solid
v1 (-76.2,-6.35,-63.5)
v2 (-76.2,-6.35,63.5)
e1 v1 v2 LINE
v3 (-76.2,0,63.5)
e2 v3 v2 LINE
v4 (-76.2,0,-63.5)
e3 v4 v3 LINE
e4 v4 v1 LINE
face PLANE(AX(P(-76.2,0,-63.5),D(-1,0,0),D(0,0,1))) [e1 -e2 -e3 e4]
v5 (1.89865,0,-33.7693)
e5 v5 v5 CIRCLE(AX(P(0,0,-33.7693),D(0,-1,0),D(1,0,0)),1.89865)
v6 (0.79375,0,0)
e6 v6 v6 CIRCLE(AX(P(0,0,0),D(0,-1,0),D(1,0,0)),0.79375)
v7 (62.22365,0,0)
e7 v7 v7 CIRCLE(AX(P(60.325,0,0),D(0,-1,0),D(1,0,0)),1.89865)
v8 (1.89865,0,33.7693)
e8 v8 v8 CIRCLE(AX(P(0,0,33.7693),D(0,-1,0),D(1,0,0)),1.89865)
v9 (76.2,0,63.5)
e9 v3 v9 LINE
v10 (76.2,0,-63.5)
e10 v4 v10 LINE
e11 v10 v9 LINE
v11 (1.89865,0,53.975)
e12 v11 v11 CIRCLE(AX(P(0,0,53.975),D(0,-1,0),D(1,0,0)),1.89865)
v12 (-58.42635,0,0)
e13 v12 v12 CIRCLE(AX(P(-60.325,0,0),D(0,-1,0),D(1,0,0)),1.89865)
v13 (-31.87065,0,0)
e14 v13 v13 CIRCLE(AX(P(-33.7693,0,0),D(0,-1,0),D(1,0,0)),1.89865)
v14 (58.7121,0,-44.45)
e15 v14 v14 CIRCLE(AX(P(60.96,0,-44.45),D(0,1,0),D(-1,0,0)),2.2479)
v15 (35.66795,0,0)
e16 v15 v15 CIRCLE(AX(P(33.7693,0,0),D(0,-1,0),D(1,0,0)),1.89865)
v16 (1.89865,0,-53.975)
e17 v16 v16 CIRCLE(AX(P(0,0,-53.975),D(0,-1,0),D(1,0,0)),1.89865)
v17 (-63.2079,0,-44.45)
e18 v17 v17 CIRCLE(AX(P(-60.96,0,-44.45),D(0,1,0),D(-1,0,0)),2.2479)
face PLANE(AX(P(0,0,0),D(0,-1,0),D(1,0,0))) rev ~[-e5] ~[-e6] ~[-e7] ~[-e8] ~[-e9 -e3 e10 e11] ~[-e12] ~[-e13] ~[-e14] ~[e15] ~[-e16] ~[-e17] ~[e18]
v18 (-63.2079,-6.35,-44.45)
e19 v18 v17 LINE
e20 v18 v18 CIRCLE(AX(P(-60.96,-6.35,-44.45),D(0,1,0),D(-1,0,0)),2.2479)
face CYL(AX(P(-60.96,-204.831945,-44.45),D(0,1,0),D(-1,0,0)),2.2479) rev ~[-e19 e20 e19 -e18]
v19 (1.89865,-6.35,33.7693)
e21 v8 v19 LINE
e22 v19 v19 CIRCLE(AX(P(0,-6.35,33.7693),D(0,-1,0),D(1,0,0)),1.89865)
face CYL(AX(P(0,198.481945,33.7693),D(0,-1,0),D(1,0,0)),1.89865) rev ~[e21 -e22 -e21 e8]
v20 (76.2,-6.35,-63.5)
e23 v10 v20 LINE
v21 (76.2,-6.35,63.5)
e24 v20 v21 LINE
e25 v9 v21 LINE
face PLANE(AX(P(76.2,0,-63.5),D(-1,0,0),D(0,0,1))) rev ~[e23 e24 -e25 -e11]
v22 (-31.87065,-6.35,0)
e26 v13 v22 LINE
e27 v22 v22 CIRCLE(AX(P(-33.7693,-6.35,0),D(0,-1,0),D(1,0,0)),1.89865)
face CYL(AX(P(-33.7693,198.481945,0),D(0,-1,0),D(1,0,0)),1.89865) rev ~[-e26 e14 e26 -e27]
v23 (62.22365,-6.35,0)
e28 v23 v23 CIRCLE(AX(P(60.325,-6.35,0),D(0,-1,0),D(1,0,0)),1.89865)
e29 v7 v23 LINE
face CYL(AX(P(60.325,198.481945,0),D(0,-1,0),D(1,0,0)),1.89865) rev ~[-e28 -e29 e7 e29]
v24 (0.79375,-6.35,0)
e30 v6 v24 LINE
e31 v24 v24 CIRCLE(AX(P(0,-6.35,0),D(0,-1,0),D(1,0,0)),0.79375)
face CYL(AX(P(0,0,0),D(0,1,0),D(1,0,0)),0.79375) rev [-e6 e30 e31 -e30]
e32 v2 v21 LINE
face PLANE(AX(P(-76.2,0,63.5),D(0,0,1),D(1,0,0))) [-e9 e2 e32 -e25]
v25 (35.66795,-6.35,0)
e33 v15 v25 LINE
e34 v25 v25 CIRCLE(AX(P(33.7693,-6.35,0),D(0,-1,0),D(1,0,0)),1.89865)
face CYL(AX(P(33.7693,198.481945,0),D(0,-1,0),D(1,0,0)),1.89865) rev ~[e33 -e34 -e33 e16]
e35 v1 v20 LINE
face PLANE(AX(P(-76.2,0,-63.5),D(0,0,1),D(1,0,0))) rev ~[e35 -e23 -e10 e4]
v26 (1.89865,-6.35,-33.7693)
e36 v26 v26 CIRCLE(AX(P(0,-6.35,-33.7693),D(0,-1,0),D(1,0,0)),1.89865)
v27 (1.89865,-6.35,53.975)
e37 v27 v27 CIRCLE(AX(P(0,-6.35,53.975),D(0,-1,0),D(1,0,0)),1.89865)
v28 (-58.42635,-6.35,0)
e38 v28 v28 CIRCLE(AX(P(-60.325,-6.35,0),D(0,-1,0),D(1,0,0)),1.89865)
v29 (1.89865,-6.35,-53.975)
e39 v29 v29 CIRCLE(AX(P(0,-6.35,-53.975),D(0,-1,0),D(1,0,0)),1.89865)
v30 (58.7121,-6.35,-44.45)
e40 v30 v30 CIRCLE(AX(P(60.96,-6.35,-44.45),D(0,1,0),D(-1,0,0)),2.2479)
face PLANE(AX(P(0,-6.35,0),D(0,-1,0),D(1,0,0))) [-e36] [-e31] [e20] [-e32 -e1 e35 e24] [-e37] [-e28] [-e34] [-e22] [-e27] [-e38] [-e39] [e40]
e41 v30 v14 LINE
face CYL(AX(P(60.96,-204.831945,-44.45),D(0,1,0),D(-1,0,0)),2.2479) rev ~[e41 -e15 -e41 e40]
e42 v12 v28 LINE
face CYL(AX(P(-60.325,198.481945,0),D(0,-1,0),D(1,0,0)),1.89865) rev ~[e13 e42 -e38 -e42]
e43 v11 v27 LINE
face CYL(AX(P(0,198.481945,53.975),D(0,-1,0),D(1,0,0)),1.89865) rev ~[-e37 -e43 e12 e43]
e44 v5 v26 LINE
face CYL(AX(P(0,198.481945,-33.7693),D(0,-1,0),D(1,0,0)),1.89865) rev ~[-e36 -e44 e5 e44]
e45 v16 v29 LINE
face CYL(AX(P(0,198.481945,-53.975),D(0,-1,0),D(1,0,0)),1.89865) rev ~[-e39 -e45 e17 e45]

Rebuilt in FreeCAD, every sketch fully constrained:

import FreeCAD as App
import Part
import Sketcher
Q = App.Units.Quantity

doc = App.newDocument("Part")
params = doc.addObject("Spreadsheet::Sheet", "Params")
for row, (alias, value) in enumerate([
    ("sketch1_width", "6 in"),
    ("sketch1_height", "5 in"),
    ("sketch1_diameter", "0.0625 in"),
    ("pad1_length", "0.25 in"),
    ("hole_diameter", "0.1495 in"),
    ("hole2_diameter", "0.1495 in"),
    ("sketch4_diameter", "0.177 in"),
    ("hole3_diameter", "0.177 in"),
], start=1):
    params.set(f"A{row}", alias)
    params.set(f"B{row}", "=" + value)
    params.setAlias(f"B{row}", alias)

body = doc.addObject("PartDesign::Body", "Body")

# Sketch on XZ plane
sketch1 = body.newObject("Sketcher::SketchObject", "Sketch")
sketch1.AttachmentSupport = (doc.getObject("XZ_Plane"), [""])
sketch1.MapMode = "FlatFace"
sketch1.addGeometry([
    Part.LineSegment(App.Vector(-76.2, 63.5, 0), App.Vector(-76.2, -63.5, 0)),  # 0
    Part.LineSegment(App.Vector(-76.2, -63.5, 0), App.Vector(76.2, -63.5, 0)),  # 1
    Part.LineSegment(App.Vector(76.2, -63.5, 0), App.Vector(76.2, 63.5, 0)),  # 2
    Part.LineSegment(App.Vector(76.2, 63.5, 0), App.Vector(-76.2, 63.5, 0)),  # 3
    Part.Circle(App.Vector(0, 0, 0), App.Vector(0, 0, 1), 0.8),  # 4
], False)
sketch1.addConstraint([
    Sketcher.Constraint("Coincident", 0, 2, 1, 1),
    Sketcher.Constraint("Coincident", 1, 2, 2, 1),
    Sketcher.Constraint("Coincident", 2, 2, 3, 1),
    Sketcher.Constraint("Coincident", 3, 2, 0, 1),
    Sketcher.Constraint("Vertical", 0),
    Sketcher.Constraint("Horizontal", 1),
    Sketcher.Constraint("Vertical", 2),
    Sketcher.Constraint("Horizontal", 3),
    Sketcher.Constraint("Coincident", 4, 3, -1, 1),
    Sketcher.Constraint("Symmetric", 0, 2, 2, 2, -1, 1),
    Sketcher.Constraint("DistanceX", 1, 1, 1, 2, Q("6 in")),
    Sketcher.Constraint("DistanceY", 0, 2, 0, 1, Q("5 in")),
    Sketcher.Constraint("Diameter", 4, Q("0.0625 in")),
])
sketch1.setExpression("Constraints[10]", "Params.sketch1_width")
sketch1.setExpression("Constraints[11]", "Params.sketch1_height")
sketch1.setExpression("Constraints[12]", "Params.sketch1_diameter")
pad1 = body.newObject("PartDesign::Pad", "Pad")
pad1.Profile = sketch1
pad1.setExpression("Length", "Params.pad1_length")

# Sketch on XZ plane
sketch2 = body.newObject("Sketcher::SketchObject", "Sketch001")
sketch2.AttachmentSupport = (doc.getObject("XZ_Plane"), [""])
sketch2.MapMode = "FlatFace"
sketch2.addGeometry([
    Part.Circle(App.Vector(0, 33.8, 0), App.Vector(0, 0, 1), 1.9),
    Part.Circle(App.Vector(-33.8, 0, 0), App.Vector(0, 0, 1), 1.9),
    Part.Circle(App.Vector(33.8, 0, 0), App.Vector(0, 0, 1), 1.9),
    Part.Circle(App.Vector(0, -33.8, 0), App.Vector(0, 0, 1), 1.9),
], False)
sketch2.addConstraint([
    Sketcher.Constraint("Equal", 0, 1),
    Sketcher.Constraint("Equal", 1, 2),
    Sketcher.Constraint("Equal", 2, 3),
    Sketcher.Constraint("Symmetric", 1, 3, 2, 3, -1, 1),
    Sketcher.Constraint("Symmetric", 0, 3, 3, 3, -1, 1),
    Sketcher.Constraint("PointOnObject", 0, 3, -2),
    Sketcher.Constraint("PointOnObject", 1, 3, -1),
    Sketcher.Constraint("Diameter", 0, Q("0.1495 in")),
    Sketcher.Constraint("DistanceX", 1, 3, 2, 3, Q("2.659 in")),
    Sketcher.Constraint("DistanceY", 3, 3, 0, 3, Q("2.659 in")),
])
doc.recompute()
hole = body.newObject("PartDesign::Hole", "Hole")
hole.Profile = sketch2
hole.ThreadType = "None"
hole.setExpression("Diameter", "Params.hole_diameter")
hole.DepthType = "ThroughAll"
hole.Reversed = True

# Sketch on XZ plane
sketch3 = body.newObject("Sketcher::SketchObject", "Sketch002")
sketch3.AttachmentSupport = (doc.getObject("XZ_Plane"), [""])
sketch3.MapMode = "FlatFace"
sketch3.addGeometry([
    Part.Circle(App.Vector(0, 54, 0), App.Vector(0, 0, 1), 1.9),
    Part.Circle(App.Vector(-60.3, 0, 0), App.Vector(0, 0, 1), 1.9),
    Part.Circle(App.Vector(0, -54, 0), App.Vector(0, 0, 1), 1.9),
    Part.Circle(App.Vector(60.3, 0, 0), App.Vector(0, 0, 1), 1.9),
], False)
sketch3.addConstraint([
    Sketcher.Constraint("Equal", 0, 1),
    Sketcher.Constraint("Equal", 1, 2),
    Sketcher.Constraint("Equal", 2, 3),
    Sketcher.Constraint("Symmetric", 0, 3, 2, 3, -1, 1),
    Sketcher.Constraint("Symmetric", 1, 3, 3, 3, -1, 1),
    Sketcher.Constraint("PointOnObject", 0, 3, -2),
    Sketcher.Constraint("PointOnObject", 1, 3, -1),
    Sketcher.Constraint("Diameter", 0, Q("0.1495 in")),
    Sketcher.Constraint("DistanceY", 2, 3, 0, 3, Q("4.25 in")),
    Sketcher.Constraint("DistanceX", 1, 3, 3, 3, Q("4.75 in")),
])
doc.recompute()
hole2 = body.newObject("PartDesign::Hole", "Hole001")
hole2.Profile = sketch3
hole2.ThreadType = "None"
hole2.setExpression("Diameter", "Params.hole2_diameter")
hole2.DepthType = "ThroughAll"
hole2.Reversed = True

# Sketch on XZ plane
sketch4 = body.newObject("Sketcher::SketchObject", "Sketch003")
sketch4.AttachmentSupport = (doc.getObject("XZ_Plane"), [""])
sketch4.MapMode = "FlatFace"
sketch4.AttachmentOffset = App.Placement(App.Vector(0, 0, 0.25 * 25.4), App.Rotation())
sketch4.addGeometry([
    Part.Circle(App.Vector(-61, -44.5, 0), App.Vector(0, 0, 1), 2.2),
    Part.Circle(App.Vector(61, -44.5, 0), App.Vector(0, 0, 1), 2.2),
], False)
sketch4.addConstraint([
    Sketcher.Constraint("Equal", 0, 1),
    Sketcher.Constraint("Symmetric", 0, 3, 1, 3, -2),
    Sketcher.Constraint("Diameter", 0, Q("0.177 in")),
    Sketcher.Constraint("DistanceX", 0, 3, -1, 1, Q("2.4 in")),
    Sketcher.Constraint("DistanceY", 0, 3, -1, 1, Q("1.75 in")),
])
sketch4.setExpression("Constraints[2]", "Params.sketch4_diameter")
doc.recompute()
hole3 = body.newObject("PartDesign::Hole", "Hole002")
hole3.Profile = sketch4
hole3.ThreadType = "None"
hole3.setExpression("Diameter", "Params.hole3_diameter")
hole3.DepthType = "ThroughAll"

doc.recompute()
